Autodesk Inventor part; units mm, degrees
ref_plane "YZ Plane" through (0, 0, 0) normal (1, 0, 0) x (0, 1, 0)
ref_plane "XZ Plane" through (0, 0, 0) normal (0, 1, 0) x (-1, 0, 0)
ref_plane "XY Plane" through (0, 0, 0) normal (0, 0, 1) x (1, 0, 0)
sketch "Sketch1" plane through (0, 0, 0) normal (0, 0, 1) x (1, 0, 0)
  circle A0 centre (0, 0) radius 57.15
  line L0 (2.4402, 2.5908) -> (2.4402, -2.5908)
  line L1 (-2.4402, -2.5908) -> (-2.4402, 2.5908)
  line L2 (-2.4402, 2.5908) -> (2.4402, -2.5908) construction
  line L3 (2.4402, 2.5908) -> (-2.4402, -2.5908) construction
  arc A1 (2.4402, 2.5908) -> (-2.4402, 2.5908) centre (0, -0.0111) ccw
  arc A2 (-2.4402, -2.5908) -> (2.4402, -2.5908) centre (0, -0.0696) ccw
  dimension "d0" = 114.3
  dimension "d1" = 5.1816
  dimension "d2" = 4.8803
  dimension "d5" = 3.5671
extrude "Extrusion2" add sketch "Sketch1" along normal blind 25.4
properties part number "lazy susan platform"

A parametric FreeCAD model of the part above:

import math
import FreeCAD as App
import Part
import Sketcher
from FreeCAD import Vector
Q = App.Units.Quantity

doc = App.newDocument("Part")
body = doc.addObject("PartDesign::Body", "Body")

# Sketch on XY plane
sketch1 = body.newObject("Sketcher::SketchObject", "Sketch")
sketch1.AttachmentSupport = (doc.getObject("XY_Plane"), [""])
sketch1.MapMode = "FlatFace"
sketch1.addGeometry(Part.Circle(Vector(0, 0, 0), Vector(0, 0, 1), 57.1), False)
sketch1.addGeometry(Part.ArcOfCircle(Part.Circle(Vector(0, 0, 0), Vector(0, 0, 1), 3.6), math.radians(47), math.radians(133)), False)
sketch1.addGeometry(Part.LineSegment(Vector(2.4, 2.6, 0), Vector(2.4, -2.6, 0)), False)
sketch1.addGeometry(Part.ArcOfCircle(Part.Circle(Vector(0, -0.1, 0), Vector(0, 0, 1), 3.5), math.radians(-134), math.radians(-46)), False)
sketch1.addGeometry(Part.LineSegment(Vector(-2.4, -2.6, 0), Vector(-2.4, 2.6, 0)), False)
sketch1.addConstraint(Sketcher.Constraint("Coincident", 1, 1, 2, 1))
sketch1.addConstraint(Sketcher.Constraint("Coincident", 2, 2, 3, 2))
sketch1.addConstraint(Sketcher.Constraint("Coincident", 3, 1, 4, 1))
sketch1.addConstraint(Sketcher.Constraint("Coincident", 4, 2, 1, 2))
sketch1.addConstraint(Sketcher.Constraint("Vertical", 2))
sketch1.addConstraint(Sketcher.Constraint("Vertical", 4))
sketch1.addConstraint(Sketcher.Constraint("Coincident", 0, 3, -1, 1))
sketch1.addConstraint(Sketcher.Constraint("Symmetric", 1, 1, 3, 1, -1, 1))
sketch1.addConstraint(Sketcher.Constraint("PointOnObject", 1, 3, -2))
sketch1.addConstraint(Sketcher.Constraint("PointOnObject", 3, 3, -2))
sketch1.addConstraint(Sketcher.Constraint("Diameter", 0, Q("4.5 in")))
sketch1.addConstraint(Sketcher.Constraint("DistanceY", 2, 2, 2, 1, Q("0.204 in")))
sketch1.addConstraint(Sketcher.Constraint("Radius", 1, Q("3.5671 mm")))
sketch1.addConstraint(Sketcher.Constraint("Radius", 3, Q("3.5087 mm")))
sketch1.addConstraint(Sketcher.Constraint("DistanceX", 3, 1, 2, 2, Q("4.8804 mm")))
pad1 = body.newObject("PartDesign::Pad", "Pad")
pad1.Profile = sketch1
pad1.Length = Q("1 in")

doc.recompute()
